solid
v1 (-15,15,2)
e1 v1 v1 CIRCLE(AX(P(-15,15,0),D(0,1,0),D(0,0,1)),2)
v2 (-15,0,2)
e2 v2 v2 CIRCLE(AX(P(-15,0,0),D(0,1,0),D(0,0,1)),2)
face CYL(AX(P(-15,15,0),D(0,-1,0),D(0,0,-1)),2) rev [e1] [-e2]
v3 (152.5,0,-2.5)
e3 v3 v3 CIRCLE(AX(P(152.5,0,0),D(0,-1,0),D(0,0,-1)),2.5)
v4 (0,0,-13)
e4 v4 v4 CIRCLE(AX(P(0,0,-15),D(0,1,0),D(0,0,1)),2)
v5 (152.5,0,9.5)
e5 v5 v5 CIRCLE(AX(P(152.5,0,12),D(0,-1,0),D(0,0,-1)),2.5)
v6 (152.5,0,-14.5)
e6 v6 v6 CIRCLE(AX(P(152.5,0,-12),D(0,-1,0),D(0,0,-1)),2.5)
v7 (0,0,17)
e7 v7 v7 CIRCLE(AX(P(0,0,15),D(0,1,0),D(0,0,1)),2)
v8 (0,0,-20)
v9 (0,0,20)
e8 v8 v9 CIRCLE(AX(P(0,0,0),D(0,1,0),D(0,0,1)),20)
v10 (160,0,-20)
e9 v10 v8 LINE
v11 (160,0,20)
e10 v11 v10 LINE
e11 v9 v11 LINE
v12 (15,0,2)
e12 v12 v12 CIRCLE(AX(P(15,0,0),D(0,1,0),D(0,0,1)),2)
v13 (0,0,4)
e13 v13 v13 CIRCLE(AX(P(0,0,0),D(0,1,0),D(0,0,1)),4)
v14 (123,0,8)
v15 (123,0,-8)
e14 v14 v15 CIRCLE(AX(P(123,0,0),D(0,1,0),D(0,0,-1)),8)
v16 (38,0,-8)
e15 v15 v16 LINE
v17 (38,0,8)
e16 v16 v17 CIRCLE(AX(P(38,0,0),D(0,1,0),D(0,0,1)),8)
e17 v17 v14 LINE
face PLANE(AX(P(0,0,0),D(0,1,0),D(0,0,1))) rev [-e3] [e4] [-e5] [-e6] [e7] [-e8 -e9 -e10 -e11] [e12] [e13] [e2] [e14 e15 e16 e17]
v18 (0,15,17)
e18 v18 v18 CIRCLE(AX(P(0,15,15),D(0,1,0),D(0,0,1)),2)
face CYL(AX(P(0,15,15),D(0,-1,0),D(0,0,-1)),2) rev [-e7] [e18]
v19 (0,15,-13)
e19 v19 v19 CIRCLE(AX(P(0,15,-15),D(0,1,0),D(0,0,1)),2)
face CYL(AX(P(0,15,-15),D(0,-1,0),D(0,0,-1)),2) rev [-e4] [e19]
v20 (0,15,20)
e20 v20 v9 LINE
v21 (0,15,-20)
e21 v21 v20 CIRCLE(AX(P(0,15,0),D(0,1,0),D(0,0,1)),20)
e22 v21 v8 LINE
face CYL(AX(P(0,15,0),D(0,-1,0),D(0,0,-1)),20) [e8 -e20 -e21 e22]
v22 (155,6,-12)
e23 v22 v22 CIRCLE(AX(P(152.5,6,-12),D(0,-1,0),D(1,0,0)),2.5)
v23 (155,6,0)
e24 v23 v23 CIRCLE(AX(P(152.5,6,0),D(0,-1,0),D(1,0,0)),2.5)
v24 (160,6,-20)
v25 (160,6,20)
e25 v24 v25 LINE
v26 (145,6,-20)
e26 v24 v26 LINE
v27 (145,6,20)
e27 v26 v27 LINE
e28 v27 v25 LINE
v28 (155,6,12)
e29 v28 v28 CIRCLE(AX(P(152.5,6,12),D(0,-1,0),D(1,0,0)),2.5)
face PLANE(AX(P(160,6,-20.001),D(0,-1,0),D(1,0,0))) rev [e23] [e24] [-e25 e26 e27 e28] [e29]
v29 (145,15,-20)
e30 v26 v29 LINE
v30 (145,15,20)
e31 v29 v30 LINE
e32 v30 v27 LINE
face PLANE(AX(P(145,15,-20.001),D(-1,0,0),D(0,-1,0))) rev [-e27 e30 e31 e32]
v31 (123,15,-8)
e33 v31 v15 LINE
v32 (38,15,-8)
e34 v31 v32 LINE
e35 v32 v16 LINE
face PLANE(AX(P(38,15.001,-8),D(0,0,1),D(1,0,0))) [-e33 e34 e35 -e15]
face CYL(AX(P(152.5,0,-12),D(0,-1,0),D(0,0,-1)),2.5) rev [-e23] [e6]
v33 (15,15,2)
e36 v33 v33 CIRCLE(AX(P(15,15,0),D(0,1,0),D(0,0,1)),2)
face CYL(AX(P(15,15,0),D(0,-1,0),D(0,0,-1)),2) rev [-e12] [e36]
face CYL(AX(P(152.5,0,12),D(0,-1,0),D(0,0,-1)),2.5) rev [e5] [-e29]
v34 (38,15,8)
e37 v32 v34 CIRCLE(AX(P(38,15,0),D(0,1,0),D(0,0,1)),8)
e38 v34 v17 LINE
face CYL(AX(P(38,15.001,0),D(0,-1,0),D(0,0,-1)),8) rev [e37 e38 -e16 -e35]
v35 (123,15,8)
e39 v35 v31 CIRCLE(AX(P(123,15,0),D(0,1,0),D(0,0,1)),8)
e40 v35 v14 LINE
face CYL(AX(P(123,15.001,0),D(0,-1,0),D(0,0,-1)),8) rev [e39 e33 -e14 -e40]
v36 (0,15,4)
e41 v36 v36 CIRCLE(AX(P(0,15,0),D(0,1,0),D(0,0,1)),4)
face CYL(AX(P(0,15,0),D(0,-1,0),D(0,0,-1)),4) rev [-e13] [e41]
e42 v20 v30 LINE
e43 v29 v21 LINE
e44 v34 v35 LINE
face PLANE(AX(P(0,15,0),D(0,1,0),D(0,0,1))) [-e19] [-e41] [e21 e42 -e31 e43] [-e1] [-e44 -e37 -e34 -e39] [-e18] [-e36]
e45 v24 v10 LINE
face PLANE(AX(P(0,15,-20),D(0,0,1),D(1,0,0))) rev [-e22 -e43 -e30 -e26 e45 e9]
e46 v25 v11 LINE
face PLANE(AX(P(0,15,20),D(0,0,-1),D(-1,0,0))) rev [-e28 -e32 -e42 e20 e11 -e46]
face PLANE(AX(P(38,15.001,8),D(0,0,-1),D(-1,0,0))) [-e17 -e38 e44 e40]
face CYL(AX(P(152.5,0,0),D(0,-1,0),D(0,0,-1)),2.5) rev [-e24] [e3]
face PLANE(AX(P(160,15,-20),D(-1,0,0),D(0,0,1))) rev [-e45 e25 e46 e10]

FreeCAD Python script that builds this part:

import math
import FreeCAD as App
import Part
import Sketcher
from FreeCAD import Vector

doc = App.newDocument("Part")
body = doc.addObject("PartDesign::Body", "Body")

sketch1 = body.newObject("Sketcher::SketchObject", "Sketch")
sketch1.AttachmentSupport = (doc.getObject("XZ_Plane"), [""])
sketch1.MapMode = "FlatFace"
sketch1.addGeometry([
    Part.LineSegment(Vector(160, -20, 0), Vector(0, -20, 0)),
    Part.ArcOfCircle(Part.Circle(Vector(0, 0, 0), Vector(0, 0, 1), 20), math.radians(90), math.radians(270)),
    Part.LineSegment(Vector(0, 20, 0), Vector(160, 20, 0)),
    Part.LineSegment(Vector(160, 20, 0), Vector(160, -20, 0)),
    Part.Circle(Vector(0, 15, 0), Vector(0, 0, 1), 2),
    Part.Circle(Vector(15, 0, 0), Vector(0, 0, 1), 2),
    Part.Circle(Vector(0, 0, 0), Vector(0, 0, 1), 4),
    Part.Circle(Vector(-15, 0, 0), Vector(0, 0, 1), 2),
    Part.Circle(Vector(0, -15, 0), Vector(0, 0, 1), 2),
], False)
sketch1.addConstraint([
    Sketcher.Constraint("Tangent", 0, 2, 1, 2),
    Sketcher.Constraint("Tangent", 1, 1, 2, 1),
    Sketcher.Constraint("Coincident", 2, 2, 3, 1),
    Sketcher.Constraint("Coincident", 3, 2, 0, 1),
    Sketcher.Constraint("Horizontal", 0),
    Sketcher.Constraint("Horizontal", 2),
    Sketcher.Constraint("Vertical", 3),
    Sketcher.Constraint("Coincident", 1, 3, -1, 1),
    Sketcher.Constraint("Coincident", 6, 3, -1, 1),
    Sketcher.Constraint("Equal", 4, 5),
    Sketcher.Constraint("Equal", 5, 7),
    Sketcher.Constraint("Equal", 7, 8),
    Sketcher.Constraint("Symmetric", 5, 3, 7, 3, -1, 1),
    Sketcher.Constraint("Symmetric", 4, 3, 8, 3, -1, 1),
    Sketcher.Constraint("PointOnObject", 4, 3, -2),
    Sketcher.Constraint("PointOnObject", 5, 3, -1),
    Sketcher.Constraint("Diameter", 4, 4.0),
    Sketcher.Constraint("Diameter", 6, 8.0),
    Sketcher.Constraint("Radius", 1, 20.0),
    Sketcher.Constraint("DistanceX", 0, 2, 0, 1, 160.0),
    Sketcher.Constraint("DistanceY", -1, 1, 4, 3, 15.0),
    Sketcher.Constraint("DistanceX", -1, 1, 5, 3, 15.0),
])
pad1 = body.newObject("PartDesign::Pad", "Pad")
pad1.Profile = sketch1
pad1.Length = 15
pad1.Reversed = True

sketch2 = body.newObject("Sketcher::SketchObject", "Sketch001")
sketch2.AttachmentSupport = (doc.getObject("XY_Plane"), [""])
sketch2.MapMode = "FlatFace"
sketch2.AttachmentOffset = App.Placement(Vector(0, 0, 20), App.Rotation())
sketch2.addGeometry([
    Part.LineSegment(Vector(145, 15, 0), Vector(145, 6, 0)),
    Part.LineSegment(Vector(145, 6, 0), Vector(160, 6, 0)),
    Part.LineSegment(Vector(160, 6, 0), Vector(160, 15, 0)),
    Part.LineSegment(Vector(160, 15, 0), Vector(145, 15, 0)),
], False)
sketch2.addConstraint([
    Sketcher.Constraint("Coincident", 0, 2, 1, 1),
    Sketcher.Constraint("Coincident", 1, 2, 2, 1),
    Sketcher.Constraint("Coincident", 2, 2, 3, 1),
    Sketcher.Constraint("Coincident", 3, 2, 0, 1),
    Sketcher.Constraint("Vertical", 0),
    Sketcher.Constraint("Horizontal", 1),
    Sketcher.Constraint("Vertical", 2),
    Sketcher.Constraint("Horizontal", 3),
    Sketcher.Constraint("DistanceX", 1, 1, 1, 2, 15.0),
    Sketcher.Constraint("DistanceY", 0, 2, 0, 1, 9.0),
    Sketcher.Constraint("DistanceX", -1, 1, 0, 2, 145.0),
    Sketcher.Constraint("DistanceY", -1, 1, 0, 2, 6.0),
])
pocket1 = body.newObject("PartDesign::Pocket", "Pocket")
pocket1.Profile = sketch2
pocket1.Type = "UpToFirst"

sketch3 = body.newObject("Sketcher::SketchObject", "Sketch002")
sketch3.AttachmentSupport = (doc.getObject("XZ_Plane"), [""])
sketch3.MapMode = "FlatFace"
sketch3.addGeometry([
    Part.Circle(Vector(152.5, 12, 0), Vector(0, 0, 1), 2.5),
    Part.Circle(Vector(152.5, 0, 0), Vector(0, 0, 1), 2.5),
    Part.Circle(Vector(152.5, -12, 0), Vector(0, 0, 1), 2.5),
], False)
sketch3.addConstraint([
    Sketcher.Constraint("Equal", 0, 1),
    Sketcher.Constraint("Equal", 1, 2),
    Sketcher.Constraint("Symmetric", 0, 3, 2, 3, -1),
    Sketcher.Constraint("PointOnObject", 1, 3, -1),
    Sketcher.Constraint("Vertical", 0, 3, 1, 3),
    Sketcher.Constraint("Diameter", 0, 5.0),
    Sketcher.Constraint("DistanceY", -1, 1, 0, 3, 12.0),
    Sketcher.Constraint("DistanceX", -1, 1, 0, 3, 152.5),
])
doc.recompute()
hole = body.newObject("PartDesign::Hole", "Hole")
hole.Profile = sketch3
hole.ThreadType = "None"
hole.Diameter = 5
hole.DepthType = "ThroughAll"

sketch4 = body.newObject("Sketcher::SketchObject", "Sketch003")
sketch4.AttachmentSupport = (doc.getObject("XZ_Plane"), [""])
sketch4.MapMode = "FlatFace"
sketch4.addGeometry([
    Part.LineSegment(Vector(38, 8, 0), Vector(123, 8, 0)),
    Part.ArcOfCircle(Part.Circle(Vector(123, 0, 0), Vector(0, 0, 1), 8), math.radians(-90), math.radians(90)),
    Part.LineSegment(Vector(123, -8, 0), Vector(38, -8, 0)),
    Part.ArcOfCircle(Part.Circle(Vector(38, 0, 0), Vector(0, 0, 1), 8), math.radians(90), math.radians(270)),
], False)
sketch4.addConstraint([
    Sketcher.Constraint("Tangent", 0, 2, 1, 2),
    Sketcher.Constraint("Tangent", 1, 1, 2, 1),
    Sketcher.Constraint("Tangent", 2, 2, 3, 2),
    Sketcher.Constraint("Tangent", 3, 1, 0, 1),
    Sketcher.Constraint("Horizontal", 0),
    Sketcher.Constraint("Horizontal", 2),
    Sketcher.Constraint("PointOnObject", 1, 3, -1),
    Sketcher.Constraint("Radius", 1, 8.0),
    Sketcher.Constraint("DistanceX", 0, 1, 0, 2, 85.0),
    Sketcher.Constraint("DistanceX", -1, 1, 1, 3, 123.0),
])
pocket2 = body.newObject("PartDesign::Pocket", "Pocket001")
pocket2.Profile = sketch4
pocket2.Type = "UpToFirst"

doc.recompute()
